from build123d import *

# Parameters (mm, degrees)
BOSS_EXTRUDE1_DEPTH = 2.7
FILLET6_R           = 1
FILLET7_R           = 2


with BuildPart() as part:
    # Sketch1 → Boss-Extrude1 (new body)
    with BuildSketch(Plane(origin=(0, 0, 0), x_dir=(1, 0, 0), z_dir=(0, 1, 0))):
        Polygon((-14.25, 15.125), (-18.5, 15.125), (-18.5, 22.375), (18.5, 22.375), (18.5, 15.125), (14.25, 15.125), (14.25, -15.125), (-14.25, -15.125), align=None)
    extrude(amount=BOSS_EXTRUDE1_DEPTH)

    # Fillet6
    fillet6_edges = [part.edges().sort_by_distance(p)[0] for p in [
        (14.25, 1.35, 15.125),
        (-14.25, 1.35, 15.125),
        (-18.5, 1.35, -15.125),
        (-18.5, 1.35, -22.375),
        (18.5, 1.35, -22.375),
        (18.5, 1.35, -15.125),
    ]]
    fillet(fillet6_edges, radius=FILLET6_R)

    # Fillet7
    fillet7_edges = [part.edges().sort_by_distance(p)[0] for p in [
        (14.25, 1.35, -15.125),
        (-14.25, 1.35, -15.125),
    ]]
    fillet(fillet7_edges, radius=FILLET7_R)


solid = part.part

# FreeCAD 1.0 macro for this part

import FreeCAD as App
import Part
import Sketcher
from FreeCAD import Vector
Q = App.Units.Quantity


def edges_at(feature, points):
    """Names of the edges that pass closest to the given points."""
    edges = feature.Shape.Edges
    near = lambda p: min(range(len(edges)), key=lambda i: edges[i].distToShape(Part.Vertex(*p))[0])
    return sorted({f"Edge{near(p) + 1}" for p in points})


def add_polygon(sketch, points):
    """Adds a closed chain of lines whose ends are joined by coincident constraints."""
    first, n = sketch.GeometryCount, len(points)
    for a, b in zip(points, points[1:] + points[:1]):
        sketch.addGeometry(Part.LineSegment(App.Vector(*a, 0), App.Vector(*b, 0)), False)
    for i in range(n):
        sketch.addConstraint(Sketcher.Constraint("Coincident", first + i, 2, first + (i + 1) % n, 1))

doc = App.newDocument("Part")
body = doc.addObject("PartDesign::Body", "Body")

sketch1 = body.newObject("Sketcher::SketchObject", "Sketch")
sketch1.AttachmentSupport = (doc.getObject("XZ_Plane"), [""])
sketch1.MapMode = "FlatFace"
add_polygon(sketch1, [(-18.5, -15.1), (-14.2, -15.1), (-14.2, 15.1), (14.2, 15.1), (14.2, -15.1), (18.5, -15.1), (18.5, -22.4), (-18.5, -22.4)])
sketch1.addConstraint([
    Sketcher.Constraint("Horizontal", 0),
    Sketcher.Constraint("Vertical", 1),
    Sketcher.Constraint("Horizontal", 2),
    Sketcher.Constraint("Vertical", 3),
    Sketcher.Constraint("Horizontal", 4),
    Sketcher.Constraint("Vertical", 5),
    Sketcher.Constraint("Horizontal", 6),
    Sketcher.Constraint("Vertical", 7),
    Sketcher.Constraint("Symmetric", 0, 2, 2, 2, -1, 1),
    Sketcher.Constraint("Symmetric", 4, 2, 7, 2, -2),
    Sketcher.Constraint("DistanceX", 6, 2, 6, 1, Q("37 mm")),
    Sketcher.Constraint("DistanceX", 2, 1, 2, 2, Q("28.5 mm")),
    Sketcher.Constraint("DistanceY", 1, 1, 1, 2, Q("30.25 mm")),
    Sketcher.Constraint("DistanceY", 5, 2, 5, 1, Q("7.25 mm")),
])
pad1 = body.newObject("PartDesign::Pad", "Pad")
pad1.Profile = sketch1
pad1.Length = 2.7
pad1.Reversed = True
doc.recompute()

fillet = body.newObject("PartDesign::Fillet", "Fillet")
fillet.Base = (pad1, edges_at(pad1, [
    (14.25, 1.35, 15.125),
    (-14.25, 1.35, 15.125),
    (-18.5, 1.35, -15.125),
    (-18.5, 1.35, -22.375),
    (18.5, 1.35, -22.375),
    (18.5, 1.35, -15.125),
]))
fillet.Radius = 1
doc.recompute()

fillet2 = body.newObject("PartDesign::Fillet", "Fillet001")
fillet2.Base = (fillet, edges_at(fillet, [(14.25, 1.35, -15.125), (-14.25, 1.35, -15.125)]))
fillet2.Radius = 2

doc.recompute()
